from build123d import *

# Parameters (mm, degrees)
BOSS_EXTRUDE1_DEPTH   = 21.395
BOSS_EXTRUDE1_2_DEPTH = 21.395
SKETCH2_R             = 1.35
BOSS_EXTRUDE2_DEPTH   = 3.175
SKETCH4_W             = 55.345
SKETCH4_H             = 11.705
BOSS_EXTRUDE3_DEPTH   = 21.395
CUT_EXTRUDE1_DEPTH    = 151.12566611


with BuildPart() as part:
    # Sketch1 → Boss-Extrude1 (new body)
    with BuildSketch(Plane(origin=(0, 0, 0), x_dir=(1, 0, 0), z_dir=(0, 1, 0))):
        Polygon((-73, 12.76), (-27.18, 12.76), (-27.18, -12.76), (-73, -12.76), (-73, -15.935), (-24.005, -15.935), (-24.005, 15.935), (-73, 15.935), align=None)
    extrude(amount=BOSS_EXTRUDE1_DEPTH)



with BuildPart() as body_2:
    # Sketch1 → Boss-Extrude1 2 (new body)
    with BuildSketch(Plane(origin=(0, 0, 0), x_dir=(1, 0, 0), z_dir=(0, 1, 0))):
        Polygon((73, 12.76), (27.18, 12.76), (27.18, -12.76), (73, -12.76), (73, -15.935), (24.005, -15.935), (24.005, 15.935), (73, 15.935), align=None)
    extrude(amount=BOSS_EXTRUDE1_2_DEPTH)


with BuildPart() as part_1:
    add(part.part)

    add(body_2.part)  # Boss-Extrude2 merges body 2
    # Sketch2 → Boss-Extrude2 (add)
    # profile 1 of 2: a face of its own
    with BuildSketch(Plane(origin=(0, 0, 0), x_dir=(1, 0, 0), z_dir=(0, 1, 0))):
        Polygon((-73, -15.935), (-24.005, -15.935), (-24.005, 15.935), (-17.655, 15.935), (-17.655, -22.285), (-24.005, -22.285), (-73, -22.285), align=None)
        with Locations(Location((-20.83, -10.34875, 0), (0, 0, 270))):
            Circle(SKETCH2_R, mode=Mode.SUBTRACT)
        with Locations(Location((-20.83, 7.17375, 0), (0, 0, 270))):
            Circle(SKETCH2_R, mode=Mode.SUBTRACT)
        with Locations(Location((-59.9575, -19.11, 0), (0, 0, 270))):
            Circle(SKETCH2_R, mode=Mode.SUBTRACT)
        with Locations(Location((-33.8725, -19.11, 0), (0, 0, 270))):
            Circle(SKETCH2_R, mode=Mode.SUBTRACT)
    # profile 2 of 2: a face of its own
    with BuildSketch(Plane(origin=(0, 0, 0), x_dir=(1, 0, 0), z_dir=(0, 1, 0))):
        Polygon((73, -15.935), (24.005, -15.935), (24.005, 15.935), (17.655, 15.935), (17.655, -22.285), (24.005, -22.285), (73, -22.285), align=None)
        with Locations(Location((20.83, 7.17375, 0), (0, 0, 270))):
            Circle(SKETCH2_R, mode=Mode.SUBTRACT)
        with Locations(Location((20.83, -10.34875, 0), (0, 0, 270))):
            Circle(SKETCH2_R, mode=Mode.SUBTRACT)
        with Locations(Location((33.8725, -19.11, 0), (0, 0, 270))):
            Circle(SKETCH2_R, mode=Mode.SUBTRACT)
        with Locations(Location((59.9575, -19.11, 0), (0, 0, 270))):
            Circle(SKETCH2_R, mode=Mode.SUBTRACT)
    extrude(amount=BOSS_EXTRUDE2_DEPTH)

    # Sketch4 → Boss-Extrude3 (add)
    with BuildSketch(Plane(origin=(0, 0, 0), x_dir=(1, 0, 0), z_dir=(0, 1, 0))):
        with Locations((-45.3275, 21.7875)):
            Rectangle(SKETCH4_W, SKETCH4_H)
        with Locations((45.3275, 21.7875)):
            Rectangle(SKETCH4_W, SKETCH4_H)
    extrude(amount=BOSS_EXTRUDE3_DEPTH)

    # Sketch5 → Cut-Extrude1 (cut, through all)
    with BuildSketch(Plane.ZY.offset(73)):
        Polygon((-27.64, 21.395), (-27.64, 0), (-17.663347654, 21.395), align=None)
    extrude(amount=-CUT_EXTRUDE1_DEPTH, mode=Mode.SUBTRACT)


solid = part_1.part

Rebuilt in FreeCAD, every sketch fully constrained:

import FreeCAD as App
import Part
import Sketcher

V = App.Vector
Q = App.Units.Quantity


def add_polygon(sketch, points):
    """Adds a closed chain of lines whose ends are joined by coincident constraints."""
    first, n = sketch.GeometryCount, len(points)
    for a, b in zip(points, points[1:] + points[:1]):
        sketch.addGeometry(Part.LineSegment(App.Vector(*a, 0), App.Vector(*b, 0)), False)
    for i in range(n):
        sketch.addConstraint(Sketcher.Constraint("Coincident", first + i, 2, first + (i + 1) % n, 1))

doc = App.newDocument("Part")
body = doc.addObject("PartDesign::Body", "Body")

# Sketch on XZ plane
sketch1 = doc.addObject("Sketcher::SketchObject", "Sketch")
body.addObject(sketch1)
sketch1.AttachmentSupport = (doc.XZ_Plane, [""])
sketch1.MapMode = "FlatFace"
add_polygon(sketch1, [(-73, -12.8), (-27.2, -12.8), (-27.2, 12.8), (-73, 12.8), (-73, 15.9), (-24, 15.9), (-24, -15.9), (-73, -15.9)])  # lines 0-7
sketch1.addConstraint([
    Sketcher.Constraint("Horizontal", 0),
    Sketcher.Constraint("Vertical", 1),
    Sketcher.Constraint("Horizontal", 2),
    Sketcher.Constraint("Vertical", 3),
    Sketcher.Constraint("Horizontal", 4),
    Sketcher.Constraint("Vertical", 5),
    Sketcher.Constraint("Horizontal", 6),
    Sketcher.Constraint("Vertical", 7),
    Sketcher.Constraint("Symmetric", 3, 2, 6, 2, -1),
    Sketcher.Constraint("Equal", 3, 7),
    Sketcher.Constraint("DistanceY", 3, 1, 3, 2, Q("0.125 in")),
    Sketcher.Constraint("DistanceX", 1, 2, 4, 2, Q("0.125 in")),
    Sketcher.Constraint("DistanceX", 0, 1, 0, 2, 45.82),
    Sketcher.Constraint("DistanceY", 1, 1, 1, 2, 25.52),
    Sketcher.Constraint("DistanceX", 0, 2, -1, 1, 27.18),
])
pad1 = doc.addObject("PartDesign::Pad", "Pad")
body.addObject(pad1)
pad1.Profile = sketch1
pad1.Length = 21.395
pad1.Reversed = True
body2 = doc.addObject("PartDesign::Body", "Body001")

# Sketch on XZ plane
sketch2 = doc.addObject("Sketcher::SketchObject", "Sketch001")
body2.addObject(sketch2)
sketch2.AttachmentSupport = (doc.getObject("XZ_Plane001"), [""])
sketch2.MapMode = "FlatFace"
add_polygon(sketch2, [(27.2, -12.8), (73, -12.8), (73, -15.9), (24, -15.9), (24, 15.9), (73, 15.9), (73, 12.8), (27.2, 12.8)])  # lines 0-7
sketch2.addConstraint([
    Sketcher.Constraint("Horizontal", 0),
    Sketcher.Constraint("Vertical", 1),
    Sketcher.Constraint("Horizontal", 2),
    Sketcher.Constraint("Vertical", 3),
    Sketcher.Constraint("Horizontal", 4),
    Sketcher.Constraint("Vertical", 5),
    Sketcher.Constraint("Horizontal", 6),
    Sketcher.Constraint("Vertical", 7),
    Sketcher.Constraint("Symmetric", 1, 2, 4, 2, -1),
    Sketcher.Constraint("Equal", 1, 5),
    Sketcher.Constraint("DistanceY", 1, 2, 1, 1, Q("0.125 in")),
    Sketcher.Constraint("DistanceX", 3, 2, 6, 2, Q("0.125 in")),
    Sketcher.Constraint("DistanceX", 0, 1, 0, 2, 45.82),
    Sketcher.Constraint("DistanceY", 3, 1, 3, 2, 31.87),
    Sketcher.Constraint("DistanceX", -1, 1, 0, 2, 73.0),
])
pad2 = doc.addObject("PartDesign::Pad", "Pad001")
body2.addObject(pad2)
pad2.Profile = sketch2
pad2.Length = 21.395
pad2.Reversed = True
body.AllowCompound = True
doc.recompute()

boolean = doc.addObject("PartDesign::Boolean", "Boolean")
body.addObject(boolean)
boolean.Type = "Fuse"
boolean.addObjects([body2])

# Sketch on XZ plane
sketch3 = doc.addObject("Sketcher::SketchObject", "Sketch002")
body.addObject(sketch3)
sketch3.AttachmentSupport = (doc.XZ_Plane, [""])
sketch3.MapMode = "FlatFace"
add_polygon(sketch3, [(-24, 15.9), (-73, 15.9), (-73, 22.3), (-17.7, 22.3), (-17.7, -15.9), (-24, -15.9)])  # lines 0-5
sketch3.addGeometry(Part.Circle(V(-33.9, 19.1, 0), V(0, 0, 1), 1.4), False)  # 6
sketch3.addGeometry(Part.Circle(V(-20.8, 10.3, 0), V(0, 0, 1), 1.4), False)  # 7
sketch3.addGeometry(Part.Circle(V(-60, 19.1, 0), V(0, 0, 1), 1.4), False)  # 8
sketch3.addGeometry(Part.Circle(V(-20.8, -7.2, 0), V(0, 0, 1), 1.4), False)  # 9
add_polygon(sketch3, [(73, 15.9), (24, 15.9), (24, -15.9), (17.7, -15.9), (17.7, 22.3), (73, 22.3)])  # lines 10-15
sketch3.addGeometry(Part.Circle(V(33.9, 19.1, 0), V(0, 0, 1), 1.4), False)  # 16
sketch3.addGeometry(Part.Circle(V(20.8, 10.3, 0), V(0, 0, 1), 1.4), False)  # 17
sketch3.addGeometry(Part.Circle(V(60, 19.1, 0), V(0, 0, 1), 1.4), False)  # 18
sketch3.addGeometry(Part.Circle(V(20.8, -7.2, 0), V(0, 0, 1), 1.4), False)  # 19
sketch3.addConstraint([
    Sketcher.Constraint("Horizontal", 0),
    Sketcher.Constraint("Vertical", 1),
    Sketcher.Constraint("Horizontal", 2),
    Sketcher.Constraint("Vertical", 3),
    Sketcher.Constraint("Horizontal", 4),
    Sketcher.Constraint("Vertical", 5),
    Sketcher.Constraint("Horizontal", 10),
    Sketcher.Constraint("Vertical", 11),
    Sketcher.Constraint("Horizontal", 12),
    Sketcher.Constraint("Vertical", 13),
    Sketcher.Constraint("Horizontal", 14),
    Sketcher.Constraint("Vertical", 15),
    Sketcher.Constraint("Equal", 6, 7),
    Sketcher.Constraint("Equal", 7, 8),
    Sketcher.Constraint("Equal", 8, 9),
    Sketcher.Constraint("Equal", 9, 16),
    Sketcher.Constraint("Equal", 16, 17),
    Sketcher.Constraint("Equal", 17, 18),
    Sketcher.Constraint("Equal", 18, 19),
    Sketcher.Constraint("Symmetric", 4, 2, 10, 2, -1, 1),
    Sketcher.Constraint("Symmetric", 6, 3, 16, 3, -2),
    Sketcher.Constraint("Symmetric", 7, 3, 17, 3, -2),
    Sketcher.Constraint("Symmetric", 8, 3, 18, 3, -2),
    Sketcher.Constraint("Symmetric", 9, 3, 19, 3, -2),
    Sketcher.Constraint("Symmetric", 3, 2, 12, 2, -2),
    Sketcher.Constraint("Symmetric", 1, 2, 14, 2, -2),
    Sketcher.Constraint("Horizontal", 6, 3, 8, 3),
    Sketcher.Constraint("Horizontal", 5, 2, 10, 2),
    Sketcher.Constraint("Vertical", 7, 3, 9, 3),
    Sketcher.Constraint("Equal", 12, 1),
    Sketcher.Constraint("DistanceX", 4, 2, 4, 1, Q("0.25 in")),
    Sketcher.Constraint("Diameter", 6, 2.7),
    Sketcher.Constraint("DistanceY", 0, 2, 8, 3, Q("0.125 in")),
    Sketcher.Constraint("DistanceX", 7, 3, 2, 2, Q("0.125 in")),
    Sketcher.Constraint("DistanceX", 0, 2, 0, 1, 48.995),
    Sketcher.Constraint("DistanceY", 3, 2, 3, 1, 38.22),
    Sketcher.Constraint("DistanceX", 6, 3, -1, 1, 33.8725),
    Sketcher.Constraint("DistanceX", 7, 3, -1, 1, 20.83),
    Sketcher.Constraint("DistanceX", 8, 3, -1, 1, 59.9575),
    Sketcher.Constraint("DistanceY", 9, 3, 7, 3, 17.5225),
    Sketcher.Constraint("DistanceY", -1, 1, 7, 3, 10.34875),
])
pad3 = doc.addObject("PartDesign::Pad", "Pad002")
body.addObject(pad3)
pad3.Profile = sketch3
pad3.Length = Q("0.125 in")
pad3.Reversed = True

# Sketch on XZ plane
sketch4 = doc.addObject("Sketcher::SketchObject", "Sketch003")
body.addObject(sketch4)
sketch4.AttachmentSupport = (doc.XZ_Plane, [""])
sketch4.MapMode = "FlatFace"
add_polygon(sketch4, [(-73, -28), (-73, -16), (-18, -16), (-18, -28)])  # lines 0-3
add_polygon(sketch4, [(18, -28), (18, -16), (73, -16), (73, -28)])  # lines 4-7
sketch4.addConstraint([
    Sketcher.Constraint("Vertical", 0),
    Sketcher.Constraint("Horizontal", 1),
    Sketcher.Constraint("Vertical", 2),
    Sketcher.Constraint("Horizontal", 3),
    Sketcher.Constraint("Vertical", 4),
    Sketcher.Constraint("Horizontal", 5),
    Sketcher.Constraint("Vertical", 6),
    Sketcher.Constraint("Horizontal", 7),
    Sketcher.Constraint("Symmetric", 1, 2, 4, 2, -2),
    Sketcher.Constraint("Symmetric", 3, 2, 6, 2, -2),
    Sketcher.Constraint("DistanceX", 1, 1, 1, 2, 55.345),
    Sketcher.Constraint("DistanceY", 0, 1, 0, 2, 11.705),
    Sketcher.Constraint("DistanceX", 0, 2, -1, 1, 73.0),
    Sketcher.Constraint("DistanceY", 0, 2, -1, 1, 15.935),
])
pad4 = doc.addObject("PartDesign::Pad", "Pad003")
body.addObject(pad4)
pad4.Profile = sketch4
pad4.Length = 21.395
pad4.Reversed = True

# Sketch on YZ plane
sketch5 = doc.addObject("Sketcher::SketchObject", "Sketch004")
body.addObject(sketch5)
sketch5.AttachmentSupport = (doc.YZ_Plane, [""])
sketch5.MapMode = "FlatFace"
sketch5.AttachmentOffset = App.Placement(V(0, 0, -73), App.Rotation())
add_polygon(sketch5, [(21, -28), (0, -28), (21, -18)])  # lines 0-2
sketch5.addConstraint([
    Sketcher.Constraint("Horizontal", 0),
    Sketcher.Constraint("Vertical", 2),
    Sketcher.Constraint("PointOnObject", 0, 2, -2),
    Sketcher.Constraint("Angle", 1, Q("25 deg")),
    Sketcher.Constraint("DistanceX", 0, 2, 0, 1, 21.395),
    Sketcher.Constraint("DistanceY", 0, 2, -1, 1, 27.64),
])
pocket1 = doc.addObject("PartDesign::Pocket", "Pocket")
body.addObject(pocket1)
pocket1.Profile = sketch5
pocket1.Type = "ThroughAll"
pocket1.Reversed = True

doc.recompute()
